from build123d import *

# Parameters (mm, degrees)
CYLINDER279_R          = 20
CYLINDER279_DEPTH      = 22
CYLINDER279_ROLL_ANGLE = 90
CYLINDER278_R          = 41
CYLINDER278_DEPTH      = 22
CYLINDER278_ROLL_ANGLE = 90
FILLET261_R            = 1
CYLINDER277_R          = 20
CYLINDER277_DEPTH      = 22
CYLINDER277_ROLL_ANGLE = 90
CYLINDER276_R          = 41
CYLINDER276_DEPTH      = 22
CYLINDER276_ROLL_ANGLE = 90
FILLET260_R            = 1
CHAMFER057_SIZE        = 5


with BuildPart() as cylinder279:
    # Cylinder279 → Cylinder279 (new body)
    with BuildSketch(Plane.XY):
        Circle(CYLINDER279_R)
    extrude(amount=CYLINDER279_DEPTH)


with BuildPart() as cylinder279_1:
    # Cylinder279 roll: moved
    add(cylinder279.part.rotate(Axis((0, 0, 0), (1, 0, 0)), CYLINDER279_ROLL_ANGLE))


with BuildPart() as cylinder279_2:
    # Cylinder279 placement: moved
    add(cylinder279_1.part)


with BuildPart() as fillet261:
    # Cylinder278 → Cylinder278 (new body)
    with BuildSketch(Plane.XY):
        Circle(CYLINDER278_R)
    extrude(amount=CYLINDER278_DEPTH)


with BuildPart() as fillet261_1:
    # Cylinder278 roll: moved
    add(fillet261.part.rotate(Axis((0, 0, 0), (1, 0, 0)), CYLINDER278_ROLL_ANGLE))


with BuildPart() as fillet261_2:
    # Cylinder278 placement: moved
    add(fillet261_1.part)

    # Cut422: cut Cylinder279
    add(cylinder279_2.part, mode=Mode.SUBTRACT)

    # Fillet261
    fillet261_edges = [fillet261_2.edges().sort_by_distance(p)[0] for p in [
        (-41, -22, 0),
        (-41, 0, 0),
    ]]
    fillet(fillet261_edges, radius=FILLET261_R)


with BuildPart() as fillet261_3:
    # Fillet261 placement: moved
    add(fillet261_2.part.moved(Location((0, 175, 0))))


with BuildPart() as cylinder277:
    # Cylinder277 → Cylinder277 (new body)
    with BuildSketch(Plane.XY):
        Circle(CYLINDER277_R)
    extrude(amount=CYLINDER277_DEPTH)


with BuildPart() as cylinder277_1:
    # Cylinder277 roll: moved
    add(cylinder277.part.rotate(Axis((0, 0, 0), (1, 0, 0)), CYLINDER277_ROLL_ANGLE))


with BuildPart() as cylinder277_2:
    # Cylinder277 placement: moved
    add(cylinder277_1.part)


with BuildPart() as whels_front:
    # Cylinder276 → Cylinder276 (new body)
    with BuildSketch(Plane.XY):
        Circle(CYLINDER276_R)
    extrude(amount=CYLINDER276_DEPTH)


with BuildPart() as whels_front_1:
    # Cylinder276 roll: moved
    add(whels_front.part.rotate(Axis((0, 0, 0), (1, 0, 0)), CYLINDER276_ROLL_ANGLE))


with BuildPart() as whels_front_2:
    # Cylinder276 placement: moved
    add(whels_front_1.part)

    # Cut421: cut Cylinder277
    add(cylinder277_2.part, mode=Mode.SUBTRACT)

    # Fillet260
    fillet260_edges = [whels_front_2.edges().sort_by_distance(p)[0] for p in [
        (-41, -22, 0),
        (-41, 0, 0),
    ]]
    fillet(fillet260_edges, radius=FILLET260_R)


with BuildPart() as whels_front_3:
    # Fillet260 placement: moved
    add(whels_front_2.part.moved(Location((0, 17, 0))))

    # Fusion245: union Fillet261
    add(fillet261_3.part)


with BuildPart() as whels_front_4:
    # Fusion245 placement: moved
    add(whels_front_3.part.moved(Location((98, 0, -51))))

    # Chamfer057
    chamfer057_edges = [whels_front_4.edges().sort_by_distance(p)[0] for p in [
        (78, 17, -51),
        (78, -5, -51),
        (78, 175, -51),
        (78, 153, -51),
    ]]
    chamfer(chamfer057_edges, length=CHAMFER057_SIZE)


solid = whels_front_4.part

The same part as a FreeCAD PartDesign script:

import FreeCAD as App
import Part
import Sketcher

V = App.Vector
Q = App.Units.Quantity


def edges_at(feature, points):
    """Names of the edges that pass closest to the given points."""
    edges = feature.Shape.Edges
    near = lambda p: min(range(len(edges)), key=lambda i: edges[i].distToShape(Part.Vertex(*p))[0])
    return sorted({f"Edge{near(p) + 1}" for p in points})

doc = App.newDocument("Part")
body = doc.addObject("PartDesign::Body", "Body")

sketch1 = body.newObject("Sketcher::SketchObject", "Sketch")
sketch1.AttachmentSupport = (doc.getObject("XY_Plane"), [""])
sketch1.MapMode = "FlatFace"
sketch1.addGeometry(Part.Circle(V(0, 0, 0), V(0, 0, 1), 20), False)
sketch1.addConstraint([
    Sketcher.Constraint("Coincident", 0, 3, -1, 1),
    Sketcher.Constraint("Diameter", 0, Q("40 mm")),
])
pad1 = body.newObject("PartDesign::Pad", "Pad")
pad1.Profile = sketch1
pad1.Length = 22
body2 = doc.addObject("PartDesign::Body", "Body001")
doc.recompute()

body.Placement = App.Placement(V(0, 0, 0), App.Rotation(V(1, 0, 0), 90))
boolean = body2.newObject("PartDesign::Boolean", "Boolean")
boolean.Type = "Fuse"
boolean.addObjects([body])
body3 = doc.addObject("PartDesign::Body", "Body002")

sketch2 = body3.newObject("Sketcher::SketchObject", "Sketch001")
sketch2.AttachmentSupport = (doc.getObject("XY_Plane002"), [""])
sketch2.MapMode = "FlatFace"
sketch2.addGeometry(Part.Circle(V(0, 0, 0), V(0, 0, 1), 41), False)
sketch2.addConstraint([
    Sketcher.Constraint("Coincident", 0, 3, -1, 1),
    Sketcher.Constraint("Diameter", 0, Q("82 mm")),
])
pad2 = body3.newObject("PartDesign::Pad", "Pad001")
pad2.Profile = sketch2
pad2.Length = 22
body4 = doc.addObject("PartDesign::Body", "Body003")
doc.recompute()

body3.Placement = App.Placement(V(0, 0, 0), App.Rotation(V(1, 0, 0), 90))
boolean2 = body4.newObject("PartDesign::Boolean", "Boolean001")
boolean2.Type = "Fuse"
boolean2.addObjects([body3])
doc.recompute()

boolean3 = body4.newObject("PartDesign::Boolean", "Boolean002")
boolean3.Type = "Cut"
boolean3.addObjects([body2])
doc.recompute()

fillet = body4.newObject("PartDesign::Fillet", "Fillet")
fillet.Base = (boolean3, edges_at(boolean3, [(-41, -22, 0), (-41, 0, 0)]))
fillet.Radius = 1
body5 = doc.addObject("PartDesign::Body", "Body004")
doc.recompute()

body4.Placement = App.Placement(V(0, 175, 0), App.Rotation(V(0, 0, 1), 0))
boolean4 = body5.newObject("PartDesign::Boolean", "Boolean003")
boolean4.Type = "Fuse"
boolean4.addObjects([body4])
body6 = doc.addObject("PartDesign::Body", "Body005")

sketch3 = body6.newObject("Sketcher::SketchObject", "Sketch002")
sketch3.AttachmentSupport = (doc.getObject("XY_Plane005"), [""])
sketch3.MapMode = "FlatFace"
sketch3.addGeometry(Part.Circle(V(0, 0, 0), V(0, 0, 1), 20), False)
sketch3.addConstraint([
    Sketcher.Constraint("Coincident", 0, 3, -1, 1),
    Sketcher.Constraint("Diameter", 0, Q("40 mm")),
])
pad3 = body6.newObject("PartDesign::Pad", "Pad002")
pad3.Profile = sketch3
pad3.Length = 22
body7 = doc.addObject("PartDesign::Body", "Body006")
doc.recompute()

body6.Placement = App.Placement(V(0, 0, 0), App.Rotation(V(1, 0, 0), 90))
boolean5 = body7.newObject("PartDesign::Boolean", "Boolean004")
boolean5.Type = "Fuse"
boolean5.addObjects([body6])
body8 = doc.addObject("PartDesign::Body", "Body007")

sketch4 = body8.newObject("Sketcher::SketchObject", "Sketch003")
sketch4.AttachmentSupport = (doc.getObject("XY_Plane007"), [""])
sketch4.MapMode = "FlatFace"
sketch4.addGeometry(Part.Circle(V(0, 0, 0), V(0, 0, 1), 41), False)
sketch4.addConstraint([
    Sketcher.Constraint("Coincident", 0, 3, -1, 1),
    Sketcher.Constraint("Diameter", 0, Q("82 mm")),
])
pad4 = body8.newObject("PartDesign::Pad", "Pad003")
pad4.Profile = sketch4
pad4.Length = 22
body9 = doc.addObject("PartDesign::Body", "Body008")
doc.recompute()

body8.Placement = App.Placement(V(0, 0, 0), App.Rotation(V(1, 0, 0), 90))
boolean6 = body9.newObject("PartDesign::Boolean", "Boolean005")
boolean6.Type = "Fuse"
boolean6.addObjects([body8])
doc.recompute()

boolean7 = body9.newObject("PartDesign::Boolean", "Boolean006")
boolean7.Type = "Cut"
boolean7.addObjects([body7])
doc.recompute()

fillet2 = body9.newObject("PartDesign::Fillet", "Fillet001")
fillet2.Base = (boolean7, edges_at(boolean7, [(-41, -22, 0), (-41, 0, 0)]))
fillet2.Radius = 1
body10 = doc.addObject("PartDesign::Body", "Body009")
body10.AllowCompound = True
doc.recompute()

body9.Placement = App.Placement(V(0, 17, 0), App.Rotation(V(0, 0, 1), 0))
boolean8 = body10.newObject("PartDesign::Boolean", "Boolean007")
boolean8.Type = "Fuse"
boolean8.addObjects([body9])
doc.recompute()

boolean9 = body10.newObject("PartDesign::Boolean", "Boolean008")
boolean9.Type = "Fuse"
boolean9.addObjects([body5])
body11 = doc.addObject("PartDesign::Body", "Body010")
body11.AllowCompound = True
doc.recompute()

body10.Placement = App.Placement(V(98, 0, -51), App.Rotation(V(0, 0, 1), 0))
boolean10 = body11.newObject("PartDesign::Boolean", "Boolean009")
boolean10.Type = "Fuse"
boolean10.addObjects([body10])
doc.recompute()

chamfer = body11.newObject("PartDesign::Chamfer", "Chamfer")
chamfer.Base = (boolean10, edges_at(boolean10, [
    (78, 17, -51),
    (78, -5, -51),
    (78, 175, -51),
    (78, 153, -51),
]))
chamfer.Size = 5

doc.recompute()
